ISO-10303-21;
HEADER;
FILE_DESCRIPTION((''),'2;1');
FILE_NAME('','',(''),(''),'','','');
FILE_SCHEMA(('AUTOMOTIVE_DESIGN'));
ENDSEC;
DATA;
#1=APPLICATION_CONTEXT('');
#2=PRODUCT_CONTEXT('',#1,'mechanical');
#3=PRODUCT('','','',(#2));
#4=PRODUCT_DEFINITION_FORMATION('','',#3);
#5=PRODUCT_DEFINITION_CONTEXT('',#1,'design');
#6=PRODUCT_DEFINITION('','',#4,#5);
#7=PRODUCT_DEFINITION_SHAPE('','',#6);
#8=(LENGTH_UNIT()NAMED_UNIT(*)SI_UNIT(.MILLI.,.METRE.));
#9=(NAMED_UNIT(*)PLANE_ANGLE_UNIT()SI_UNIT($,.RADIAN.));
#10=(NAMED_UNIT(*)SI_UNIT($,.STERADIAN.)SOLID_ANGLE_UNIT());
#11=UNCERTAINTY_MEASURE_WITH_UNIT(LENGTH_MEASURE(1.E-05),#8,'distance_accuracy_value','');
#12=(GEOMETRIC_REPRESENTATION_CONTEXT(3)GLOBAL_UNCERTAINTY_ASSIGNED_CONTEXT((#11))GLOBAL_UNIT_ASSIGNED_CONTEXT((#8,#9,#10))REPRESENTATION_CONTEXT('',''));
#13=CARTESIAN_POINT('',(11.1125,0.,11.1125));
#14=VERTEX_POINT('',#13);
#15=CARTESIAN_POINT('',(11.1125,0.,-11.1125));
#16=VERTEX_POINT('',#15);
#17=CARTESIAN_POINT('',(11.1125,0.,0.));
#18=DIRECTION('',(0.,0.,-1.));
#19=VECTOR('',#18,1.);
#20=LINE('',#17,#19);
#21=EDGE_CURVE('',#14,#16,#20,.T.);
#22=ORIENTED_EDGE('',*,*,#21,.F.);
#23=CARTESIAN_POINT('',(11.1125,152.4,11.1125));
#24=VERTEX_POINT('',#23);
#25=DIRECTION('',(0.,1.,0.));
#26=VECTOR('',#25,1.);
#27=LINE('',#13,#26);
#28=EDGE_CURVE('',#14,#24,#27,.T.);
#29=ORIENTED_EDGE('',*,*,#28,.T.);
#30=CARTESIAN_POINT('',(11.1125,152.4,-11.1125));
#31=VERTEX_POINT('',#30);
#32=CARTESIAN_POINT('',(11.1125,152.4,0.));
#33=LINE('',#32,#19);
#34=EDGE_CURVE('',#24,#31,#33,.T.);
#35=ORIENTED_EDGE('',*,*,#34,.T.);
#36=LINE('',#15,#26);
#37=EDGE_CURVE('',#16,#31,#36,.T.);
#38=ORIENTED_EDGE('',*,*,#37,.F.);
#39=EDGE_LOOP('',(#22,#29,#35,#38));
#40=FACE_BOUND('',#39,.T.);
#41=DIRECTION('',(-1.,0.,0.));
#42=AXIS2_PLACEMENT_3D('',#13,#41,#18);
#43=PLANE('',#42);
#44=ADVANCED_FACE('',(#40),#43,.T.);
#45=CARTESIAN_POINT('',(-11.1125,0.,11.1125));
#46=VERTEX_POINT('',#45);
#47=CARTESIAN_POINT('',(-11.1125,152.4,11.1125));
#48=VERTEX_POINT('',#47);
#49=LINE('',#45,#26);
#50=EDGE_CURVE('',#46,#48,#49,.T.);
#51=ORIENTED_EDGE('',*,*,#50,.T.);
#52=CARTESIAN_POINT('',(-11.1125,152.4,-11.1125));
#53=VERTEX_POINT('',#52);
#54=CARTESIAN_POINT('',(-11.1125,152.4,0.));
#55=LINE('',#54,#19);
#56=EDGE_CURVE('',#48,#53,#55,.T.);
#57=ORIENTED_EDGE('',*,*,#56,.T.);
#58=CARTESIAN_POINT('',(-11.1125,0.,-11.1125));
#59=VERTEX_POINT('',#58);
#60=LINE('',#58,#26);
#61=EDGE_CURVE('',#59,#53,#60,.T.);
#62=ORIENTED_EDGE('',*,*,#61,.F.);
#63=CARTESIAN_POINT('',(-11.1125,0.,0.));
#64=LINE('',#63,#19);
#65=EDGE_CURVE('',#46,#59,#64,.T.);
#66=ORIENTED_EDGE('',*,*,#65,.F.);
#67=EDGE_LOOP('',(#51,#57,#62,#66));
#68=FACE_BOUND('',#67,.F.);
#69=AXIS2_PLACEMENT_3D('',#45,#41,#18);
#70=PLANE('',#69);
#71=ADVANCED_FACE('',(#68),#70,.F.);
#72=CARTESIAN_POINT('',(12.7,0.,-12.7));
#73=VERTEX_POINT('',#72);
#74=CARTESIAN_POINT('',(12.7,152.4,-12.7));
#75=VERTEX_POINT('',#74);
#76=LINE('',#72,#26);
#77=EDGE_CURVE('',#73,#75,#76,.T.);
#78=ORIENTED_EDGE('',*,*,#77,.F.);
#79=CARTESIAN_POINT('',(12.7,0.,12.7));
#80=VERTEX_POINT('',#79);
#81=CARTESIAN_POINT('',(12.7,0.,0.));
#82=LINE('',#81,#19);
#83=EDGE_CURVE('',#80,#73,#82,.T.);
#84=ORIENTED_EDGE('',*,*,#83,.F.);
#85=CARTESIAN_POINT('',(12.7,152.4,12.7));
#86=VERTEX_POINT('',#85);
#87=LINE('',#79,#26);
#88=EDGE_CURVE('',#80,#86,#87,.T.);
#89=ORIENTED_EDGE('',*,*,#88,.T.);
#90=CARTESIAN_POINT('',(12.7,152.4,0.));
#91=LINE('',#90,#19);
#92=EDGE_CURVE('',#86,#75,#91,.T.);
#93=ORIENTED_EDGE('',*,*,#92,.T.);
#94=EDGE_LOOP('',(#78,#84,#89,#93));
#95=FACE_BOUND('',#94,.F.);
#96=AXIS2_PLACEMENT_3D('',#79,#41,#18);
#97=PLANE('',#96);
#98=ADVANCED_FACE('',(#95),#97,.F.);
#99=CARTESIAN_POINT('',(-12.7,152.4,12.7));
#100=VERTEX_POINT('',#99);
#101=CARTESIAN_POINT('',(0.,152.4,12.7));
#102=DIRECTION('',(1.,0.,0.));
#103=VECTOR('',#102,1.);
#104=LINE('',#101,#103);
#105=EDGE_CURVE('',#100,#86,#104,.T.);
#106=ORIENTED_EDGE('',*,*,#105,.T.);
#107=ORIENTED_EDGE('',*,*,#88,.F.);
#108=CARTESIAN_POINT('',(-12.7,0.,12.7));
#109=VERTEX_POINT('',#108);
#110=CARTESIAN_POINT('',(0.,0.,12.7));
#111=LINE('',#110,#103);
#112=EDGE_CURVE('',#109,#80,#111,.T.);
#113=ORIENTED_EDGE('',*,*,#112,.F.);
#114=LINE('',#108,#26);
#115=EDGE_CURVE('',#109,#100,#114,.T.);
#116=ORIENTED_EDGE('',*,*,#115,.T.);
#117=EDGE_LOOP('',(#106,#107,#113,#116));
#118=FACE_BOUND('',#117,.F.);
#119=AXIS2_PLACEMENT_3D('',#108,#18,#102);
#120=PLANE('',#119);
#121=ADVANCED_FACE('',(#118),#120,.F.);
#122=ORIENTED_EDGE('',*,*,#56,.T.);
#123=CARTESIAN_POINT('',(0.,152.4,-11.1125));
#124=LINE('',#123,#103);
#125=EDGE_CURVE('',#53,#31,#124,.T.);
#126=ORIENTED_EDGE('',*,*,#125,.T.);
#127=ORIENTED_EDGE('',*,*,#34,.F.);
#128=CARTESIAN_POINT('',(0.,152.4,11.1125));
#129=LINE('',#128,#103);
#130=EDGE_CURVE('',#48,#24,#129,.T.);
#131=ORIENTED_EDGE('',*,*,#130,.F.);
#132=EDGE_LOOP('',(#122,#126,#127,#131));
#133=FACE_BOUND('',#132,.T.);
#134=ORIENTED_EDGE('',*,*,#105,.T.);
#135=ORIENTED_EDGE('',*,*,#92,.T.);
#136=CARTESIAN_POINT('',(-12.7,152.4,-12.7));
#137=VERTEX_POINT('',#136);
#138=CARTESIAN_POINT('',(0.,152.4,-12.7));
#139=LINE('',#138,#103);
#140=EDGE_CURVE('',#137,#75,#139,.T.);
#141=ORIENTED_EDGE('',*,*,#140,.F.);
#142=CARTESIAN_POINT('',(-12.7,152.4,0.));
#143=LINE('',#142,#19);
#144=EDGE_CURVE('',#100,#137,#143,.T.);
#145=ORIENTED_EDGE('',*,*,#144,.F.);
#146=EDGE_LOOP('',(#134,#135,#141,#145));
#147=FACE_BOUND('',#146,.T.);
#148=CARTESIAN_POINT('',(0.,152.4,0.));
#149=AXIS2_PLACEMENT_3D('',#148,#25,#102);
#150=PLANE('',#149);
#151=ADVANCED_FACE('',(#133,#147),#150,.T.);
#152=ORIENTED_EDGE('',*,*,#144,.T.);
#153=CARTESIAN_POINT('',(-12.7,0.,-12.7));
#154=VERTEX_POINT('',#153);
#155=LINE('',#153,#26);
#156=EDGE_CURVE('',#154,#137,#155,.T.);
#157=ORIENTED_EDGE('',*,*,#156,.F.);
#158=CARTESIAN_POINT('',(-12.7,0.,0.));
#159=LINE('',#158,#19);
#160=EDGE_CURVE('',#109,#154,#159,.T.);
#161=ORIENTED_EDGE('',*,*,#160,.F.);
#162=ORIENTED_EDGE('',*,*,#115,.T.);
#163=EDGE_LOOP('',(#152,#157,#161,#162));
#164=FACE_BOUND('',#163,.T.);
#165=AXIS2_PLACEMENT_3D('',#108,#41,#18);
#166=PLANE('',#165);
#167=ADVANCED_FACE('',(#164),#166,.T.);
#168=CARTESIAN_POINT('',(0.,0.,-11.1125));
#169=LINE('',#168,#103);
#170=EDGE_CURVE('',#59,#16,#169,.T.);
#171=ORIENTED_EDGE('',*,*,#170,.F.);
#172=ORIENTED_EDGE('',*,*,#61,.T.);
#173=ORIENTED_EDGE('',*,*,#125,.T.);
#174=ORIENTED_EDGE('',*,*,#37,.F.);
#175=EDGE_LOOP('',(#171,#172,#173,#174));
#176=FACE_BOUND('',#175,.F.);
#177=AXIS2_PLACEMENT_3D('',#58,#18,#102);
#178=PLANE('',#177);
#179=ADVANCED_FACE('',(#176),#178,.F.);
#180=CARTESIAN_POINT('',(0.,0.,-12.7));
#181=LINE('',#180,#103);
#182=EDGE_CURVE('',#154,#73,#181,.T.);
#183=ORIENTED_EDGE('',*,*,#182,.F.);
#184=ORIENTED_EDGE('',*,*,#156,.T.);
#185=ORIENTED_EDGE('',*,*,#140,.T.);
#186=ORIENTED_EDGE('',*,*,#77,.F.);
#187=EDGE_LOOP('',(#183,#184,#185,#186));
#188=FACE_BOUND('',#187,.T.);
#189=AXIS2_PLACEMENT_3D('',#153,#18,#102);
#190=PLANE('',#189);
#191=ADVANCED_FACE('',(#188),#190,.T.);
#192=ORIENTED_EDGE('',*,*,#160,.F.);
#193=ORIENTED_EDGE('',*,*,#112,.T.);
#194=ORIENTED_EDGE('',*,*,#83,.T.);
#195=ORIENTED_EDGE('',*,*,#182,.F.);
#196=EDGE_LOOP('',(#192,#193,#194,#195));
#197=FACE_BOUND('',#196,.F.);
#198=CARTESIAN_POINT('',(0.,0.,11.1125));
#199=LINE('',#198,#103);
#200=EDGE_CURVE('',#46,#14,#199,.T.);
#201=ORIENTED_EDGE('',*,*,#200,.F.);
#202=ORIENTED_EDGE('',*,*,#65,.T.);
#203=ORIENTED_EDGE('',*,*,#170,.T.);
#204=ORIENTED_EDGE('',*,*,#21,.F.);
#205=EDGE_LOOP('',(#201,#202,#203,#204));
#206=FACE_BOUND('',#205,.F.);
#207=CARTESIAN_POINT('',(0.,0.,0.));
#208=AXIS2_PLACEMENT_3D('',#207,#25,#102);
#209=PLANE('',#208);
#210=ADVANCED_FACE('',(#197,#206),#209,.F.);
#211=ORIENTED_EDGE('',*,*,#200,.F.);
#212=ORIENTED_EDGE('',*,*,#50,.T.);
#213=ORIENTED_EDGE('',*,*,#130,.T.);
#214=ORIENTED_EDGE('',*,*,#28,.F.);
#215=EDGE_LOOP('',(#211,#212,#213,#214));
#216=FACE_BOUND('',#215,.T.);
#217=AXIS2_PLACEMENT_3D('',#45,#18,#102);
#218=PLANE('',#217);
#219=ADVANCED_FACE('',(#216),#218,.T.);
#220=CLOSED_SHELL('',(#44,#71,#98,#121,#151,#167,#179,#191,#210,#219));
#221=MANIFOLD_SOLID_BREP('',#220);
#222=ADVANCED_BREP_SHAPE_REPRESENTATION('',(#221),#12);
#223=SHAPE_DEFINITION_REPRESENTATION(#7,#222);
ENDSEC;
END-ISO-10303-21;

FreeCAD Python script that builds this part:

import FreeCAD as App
import Part
import Sketcher
Q = App.Units.Quantity

doc = App.newDocument("Part")
params = doc.addObject("Spreadsheet::Sheet", "Params")
for row, (alias, value) in enumerate([
    ("sketch1_width", "1 in"),
    ("sketch1_width2", "0.875 in"),
    ("pad1_length", "6 in"),
], start=1):
    params.set(f"A{row}", alias)
    params.set(f"B{row}", "=" + value)
    params.setAlias(f"B{row}", alias)

body = doc.addObject("PartDesign::Body", "Body")

# Sketch on XZ plane
sketch1 = doc.addObject("Sketcher::SketchObject", "Sketch")
body.addObject(sketch1)
sketch1.AttachmentSupport = (doc.XZ_Plane, [""])
sketch1.MapMode = "FlatFace"
sketch1.addGeometry([
    Part.LineSegment(App.Vector(-12.7, -12.7, 0), App.Vector(-12.7, 12.7, 0)),  # 0
    Part.LineSegment(App.Vector(-12.7, 12.7, 0), App.Vector(12.7, 12.7, 0)),  # 1
    Part.LineSegment(App.Vector(12.7, 12.7, 0), App.Vector(12.7, -12.7, 0)),  # 2
    Part.LineSegment(App.Vector(12.7, -12.7, 0), App.Vector(-12.7, -12.7, 0)),  # 3
    Part.LineSegment(App.Vector(11.1125, 11.1125, 0), App.Vector(-11.1125, 11.1125, 0)),  # 4
    Part.LineSegment(App.Vector(-11.1125, 11.1125, 0), App.Vector(-11.1125, -11.1125, 0)),  # 5
    Part.LineSegment(App.Vector(-11.1125, -11.1125, 0), App.Vector(11.1125, -11.1125, 0)),  # 6
    Part.LineSegment(App.Vector(11.1125, -11.1125, 0), App.Vector(11.1125, 11.1125, 0)),  # 7
], False)
sketch1.addConstraint([
    Sketcher.Constraint("Coincident", 0, 2, 1, 1),
    Sketcher.Constraint("Coincident", 1, 2, 2, 1),
    Sketcher.Constraint("Coincident", 2, 2, 3, 1),
    Sketcher.Constraint("Coincident", 3, 2, 0, 1),
    Sketcher.Constraint("Coincident", 4, 2, 5, 1),
    Sketcher.Constraint("Coincident", 5, 2, 6, 1),
    Sketcher.Constraint("Coincident", 6, 2, 7, 1),
    Sketcher.Constraint("Coincident", 7, 2, 4, 1),
    Sketcher.Constraint("Vertical", 0),
    Sketcher.Constraint("Horizontal", 1),
    Sketcher.Constraint("Vertical", 2),
    Sketcher.Constraint("Horizontal", 3),
    Sketcher.Constraint("Horizontal", 4),
    Sketcher.Constraint("Vertical", 5),
    Sketcher.Constraint("Horizontal", 6),
    Sketcher.Constraint("Vertical", 7),
    Sketcher.Constraint("Symmetric", 0, 2, 2, 2, -1, 1),
    Sketcher.Constraint("Symmetric", 4, 2, 6, 2, -1, 1),
    Sketcher.Constraint("Equal", 3, 0),
    Sketcher.Constraint("Equal", 6, 5),
    Sketcher.Constraint("DistanceX", 1, 1, 1, 2, Q("1 in")),
    Sketcher.Constraint("DistanceX", 4, 2, 4, 1, Q("0.875 in")),
])
sketch1.setExpression("Constraints[20]", "Params.sketch1_width")
sketch1.setExpression("Constraints[21]", "Params.sketch1_width2")
pad1 = doc.addObject("PartDesign::Pad", "Pad")
body.addObject(pad1)
pad1.Profile = sketch1
pad1.setExpression("Length", "Params.pad1_length")
pad1.Reversed = True

doc.recompute()
